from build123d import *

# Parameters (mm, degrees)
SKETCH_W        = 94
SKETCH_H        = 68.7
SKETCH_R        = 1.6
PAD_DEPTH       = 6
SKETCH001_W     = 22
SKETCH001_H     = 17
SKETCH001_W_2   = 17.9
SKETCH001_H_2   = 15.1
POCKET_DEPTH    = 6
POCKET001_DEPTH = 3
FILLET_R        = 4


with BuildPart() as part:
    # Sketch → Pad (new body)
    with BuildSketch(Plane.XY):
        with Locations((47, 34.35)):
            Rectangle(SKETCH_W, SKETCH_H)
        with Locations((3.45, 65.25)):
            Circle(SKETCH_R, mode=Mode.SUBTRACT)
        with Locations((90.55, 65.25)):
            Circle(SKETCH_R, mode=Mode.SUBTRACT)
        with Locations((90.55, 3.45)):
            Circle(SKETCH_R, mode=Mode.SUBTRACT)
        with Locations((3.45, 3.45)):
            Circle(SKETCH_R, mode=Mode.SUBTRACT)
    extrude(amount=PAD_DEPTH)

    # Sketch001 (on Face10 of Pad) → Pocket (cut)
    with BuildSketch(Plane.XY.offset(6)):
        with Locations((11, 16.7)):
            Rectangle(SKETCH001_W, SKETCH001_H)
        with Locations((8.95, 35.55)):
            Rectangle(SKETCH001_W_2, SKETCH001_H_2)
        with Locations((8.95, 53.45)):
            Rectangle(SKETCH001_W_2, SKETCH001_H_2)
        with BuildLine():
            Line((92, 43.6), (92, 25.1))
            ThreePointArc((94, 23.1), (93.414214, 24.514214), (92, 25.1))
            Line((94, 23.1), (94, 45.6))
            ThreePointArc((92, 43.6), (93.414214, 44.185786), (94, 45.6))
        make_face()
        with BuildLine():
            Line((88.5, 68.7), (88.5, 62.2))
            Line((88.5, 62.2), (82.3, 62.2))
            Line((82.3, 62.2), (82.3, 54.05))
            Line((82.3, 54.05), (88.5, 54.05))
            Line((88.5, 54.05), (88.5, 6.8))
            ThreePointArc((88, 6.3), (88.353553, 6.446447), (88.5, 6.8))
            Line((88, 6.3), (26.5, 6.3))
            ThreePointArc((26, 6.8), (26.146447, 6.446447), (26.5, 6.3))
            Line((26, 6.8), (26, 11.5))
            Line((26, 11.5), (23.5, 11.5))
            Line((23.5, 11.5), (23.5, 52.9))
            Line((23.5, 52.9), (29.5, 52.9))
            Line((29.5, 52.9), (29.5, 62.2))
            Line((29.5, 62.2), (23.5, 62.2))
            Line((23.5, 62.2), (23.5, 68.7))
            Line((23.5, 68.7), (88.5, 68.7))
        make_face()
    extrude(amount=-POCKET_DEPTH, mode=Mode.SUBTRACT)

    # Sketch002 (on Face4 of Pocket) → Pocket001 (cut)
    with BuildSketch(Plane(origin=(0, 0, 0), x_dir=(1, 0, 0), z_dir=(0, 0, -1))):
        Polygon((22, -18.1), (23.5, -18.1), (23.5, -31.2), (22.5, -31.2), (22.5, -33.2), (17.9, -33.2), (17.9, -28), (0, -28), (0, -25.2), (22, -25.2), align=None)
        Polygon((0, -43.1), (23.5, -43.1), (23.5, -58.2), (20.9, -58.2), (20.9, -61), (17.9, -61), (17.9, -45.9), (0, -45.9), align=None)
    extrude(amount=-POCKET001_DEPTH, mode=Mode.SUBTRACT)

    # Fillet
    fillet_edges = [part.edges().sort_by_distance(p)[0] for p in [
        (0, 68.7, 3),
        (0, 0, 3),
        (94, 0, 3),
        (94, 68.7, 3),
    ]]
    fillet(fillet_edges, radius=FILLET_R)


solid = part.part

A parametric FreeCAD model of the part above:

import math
import FreeCAD as App
import Part
import Sketcher


def edges_at(feature, points):
    """Names of the edges that pass closest to the given points."""
    edges = feature.Shape.Edges
    near = lambda p: min(range(len(edges)), key=lambda i: edges[i].distToShape(Part.Vertex(*p))[0])
    return sorted({f"Edge{near(p) + 1}" for p in points})


def add_polygon(sketch, points):
    """Adds a closed chain of lines whose ends are joined by coincident constraints."""
    first, n = sketch.GeometryCount, len(points)
    for a, b in zip(points, points[1:] + points[:1]):
        sketch.addGeometry(Part.LineSegment(App.Vector(*a, 0), App.Vector(*b, 0)), False)
    for i in range(n):
        sketch.addConstraint(Sketcher.Constraint("Coincident", first + i, 2, first + (i + 1) % n, 1))

doc = App.newDocument("Part")
params = doc.addObject("Spreadsheet::Sheet", "Params")
for row, (alias, value) in enumerate([
    ("sketch1_diameter", "3.2 mm"),
    ("sketch1_width", "94 mm"),
    ("sketch1_height", "68.7 mm"),
    ("pad1_length", "6 mm"),
    ("sketch2_radius", "1.999999 mm"),
    ("sketch2_radius2", "0.500001 mm"),
    ("sketch2_width", "22 mm"),
    ("sketch2_width2", "65 mm"),
    ("sketch2_width3", "6 mm"),
    ("pocket1_length", "6 mm"),
    ("sketch3_width", "22 mm"),
    ("sketch3_width2", "1 mm"),
    ("sketch3_width3", "3 mm"),
    ("sketch3_height", "2 mm"),
    ("sketch3_width4", "1.5 mm"),
    ("pocket2_length", "3 mm"),
    ("fillet_radius", "4 mm"),
], start=1):
    params.set(f"A{row}", alias)
    params.set(f"B{row}", "=" + value)
    params.setAlias(f"B{row}", alias)

body = doc.addObject("PartDesign::Body", "Body")

# Sketch on XY plane
sketch1 = doc.addObject("Sketcher::SketchObject", "Sketch")
body.addObject(sketch1)
sketch1.AttachmentSupport = (doc.XY_Plane, [""])
sketch1.MapMode = "FlatFace"
add_polygon(sketch1, [(0, 68.7), (0, 0), (94, 0), (94, 68.7)])  # lines 0-3
sketch1.addGeometry(Part.Circle(App.Vector(3.45, 3.45, 0), App.Vector(0, 0, 1), 1.6), False)  # 4
sketch1.addGeometry(Part.Circle(App.Vector(90.55, 3.45, 0), App.Vector(0, 0, 1), 1.6), False)  # 5
sketch1.addGeometry(Part.Circle(App.Vector(3.45, 65.25, 0), App.Vector(0, 0, 1), 1.6), False)  # 6
sketch1.addGeometry(Part.Circle(App.Vector(90.55, 65.25, 0), App.Vector(0, 0, 1), 1.6), False)  # 7
sketch1.addConstraint(Sketcher.Constraint("Vertical", 0))
sketch1.addConstraint(Sketcher.Constraint("Horizontal", 1))
sketch1.addConstraint(Sketcher.Constraint("Vertical", 2))
sketch1.addConstraint(Sketcher.Constraint("Horizontal", 3))
sketch1.addConstraint(Sketcher.Constraint("Coincident", 0, 2, -1, 1))
sketch1.addConstraint(Sketcher.Constraint("Equal", 4, 5))
sketch1.addConstraint(Sketcher.Constraint("Equal", 5, 6))
sketch1.addConstraint(Sketcher.Constraint("Equal", 6, 7))
sketch1.addConstraint(Sketcher.Constraint("Horizontal", 4, 3, 5, 3))
sketch1.addConstraint(Sketcher.Constraint("Horizontal", 6, 3, 7, 3))
sketch1.addConstraint(Sketcher.Constraint("Vertical", 4, 3, 6, 3))
sketch1.addConstraint(Sketcher.Constraint("Vertical", 5, 3, 7, 3))
sketch1.addConstraint(Sketcher.Constraint("Diameter", 4, 3.2))
sketch1.addConstraint(Sketcher.Constraint("DistanceX", 1, 1, 1, 2, 94.0))
sketch1.addConstraint(Sketcher.Constraint("DistanceY", 0, 2, 0, 1, 68.7))
sketch1.addConstraint(Sketcher.Constraint("DistanceX", 4, 3, 5, 3, 87.1))
sketch1.addConstraint(Sketcher.Constraint("DistanceY", 4, 3, 6, 3, 61.8))
sketch1.addConstraint(Sketcher.Constraint("DistanceX", -1, 1, 4, 3, 3.45))
sketch1.addConstraint(Sketcher.Constraint("DistanceY", -1, 1, 4, 3, 3.45))
sketch1.setExpression("Constraints[16]", "Params.sketch1_diameter")
sketch1.setExpression("Constraints[17]", "Params.sketch1_width")
sketch1.setExpression("Constraints[18]", "Params.sketch1_height")
pad1 = doc.addObject("PartDesign::Pad", "Pad")
body.addObject(pad1)
pad1.Profile = sketch1
pad1.setExpression("Length", "Params.pad1_length")

# Sketch on XY plane
sketch2 = doc.addObject("Sketcher::SketchObject", "Sketch001")
body.addObject(sketch2)
sketch2.AttachmentSupport = (doc.XY_Plane, [""])
sketch2.MapMode = "FlatFace"
sketch2.AttachmentOffset = App.Placement(App.Vector(0, 0, 6), App.Rotation())
add_polygon(sketch2, [(0, 25.2), (0, 8.2), (22, 8.2), (22, 25.2)])  # lines 0-3
add_polygon(sketch2, [(0, 43.1), (0, 28), (17.9, 28), (17.9, 43.1)])  # lines 4-7
add_polygon(sketch2, [(0, 61), (0, 45.9), (17.9, 45.9), (17.9, 61)])  # lines 8-11
sketch2.addGeometry(Part.LineSegment(App.Vector(92, 43.6, 0), App.Vector(92, 25.1, 0)), False)  # 12
sketch2.addGeometry(Part.ArcOfCircle(Part.Circle(App.Vector(92.000001, 23.100001, 0), App.Vector(0, 0, 1), 1.999999), math.radians(-0.000043), math.radians(90.000043)), False)  # 13
sketch2.addGeometry(Part.LineSegment(App.Vector(94, 23.1, 0), App.Vector(94, 45.6, 0)), False)  # 14
sketch2.addGeometry(Part.ArcOfCircle(Part.Circle(App.Vector(92.000001, 45.599999, 0), App.Vector(0, 0, 1), 1.999999), math.radians(-90.000043), math.radians(0.000043)), False)  # 15
sketch2.addGeometry(Part.LineSegment(App.Vector(88.5, 62.2, 0), App.Vector(88.5, 68.7, 0)), False)  # 16
sketch2.addGeometry(Part.LineSegment(App.Vector(88.5, 68.7, 0), App.Vector(23.5, 68.7, 0)), False)  # 17
sketch2.addGeometry(Part.LineSegment(App.Vector(23.5, 68.7, 0), App.Vector(23.5, 62.2, 0)), False)  # 18
sketch2.addGeometry(Part.LineSegment(App.Vector(23.5, 62.2, 0), App.Vector(29.5, 62.2, 0)), False)  # 19
sketch2.addGeometry(Part.LineSegment(App.Vector(29.5, 62.2, 0), App.Vector(29.5, 52.9, 0)), False)  # 20
sketch2.addGeometry(Part.LineSegment(App.Vector(29.5, 52.9, 0), App.Vector(23.5, 52.9, 0)), False)  # 21
sketch2.addGeometry(Part.LineSegment(App.Vector(23.5, 52.9, 0), App.Vector(23.5, 11.5, 0)), False)  # 22
sketch2.addGeometry(Part.LineSegment(App.Vector(23.5, 11.5, 0), App.Vector(26, 11.5, 0)), False)  # 23
sketch2.addGeometry(Part.LineSegment(App.Vector(26, 11.5, 0), App.Vector(26, 6.8, 0)), False)  # 24
sketch2.addGeometry(Part.ArcOfCircle(Part.Circle(App.Vector(26.500001, 6.800001, 0), App.Vector(0, 0, 1), 0.500001), math.radians(-179.999847), math.radians(-90.000153)), False)  # 25
sketch2.addGeometry(Part.LineSegment(App.Vector(26.5, 6.3, 0), App.Vector(88, 6.3, 0)), False)  # 26
sketch2.addGeometry(Part.ArcOfCircle(Part.Circle(App.Vector(87.999999, 6.800001, 0), App.Vector(0, 0, 1), 0.500001), math.radians(-89.999847), math.radians(-0.000153)), False)  # 27
sketch2.addGeometry(Part.LineSegment(App.Vector(88.5, 6.8, 0), App.Vector(88.5, 54.05, 0)), False)  # 28
sketch2.addGeometry(Part.LineSegment(App.Vector(88.5, 54.05, 0), App.Vector(82.3, 54.05, 0)), False)  # 29
sketch2.addGeometry(Part.LineSegment(App.Vector(82.3, 54.05, 0), App.Vector(82.3, 62.2, 0)), False)  # 30
sketch2.addGeometry(Part.LineSegment(App.Vector(82.3, 62.2, 0), App.Vector(88.5, 62.2, 0)), False)  # 31
sketch2.addConstraint(Sketcher.Constraint("Coincident", 12, 2, 13, 2))
sketch2.addConstraint(Sketcher.Constraint("Tangent", 13, 1, 14, 1))
sketch2.addConstraint(Sketcher.Constraint("Tangent", 14, 2, 15, 2))
sketch2.addConstraint(Sketcher.Constraint("Coincident", 15, 1, 12, 1))
sketch2.addConstraint(Sketcher.Constraint("Coincident", 16, 2, 17, 1))
sketch2.addConstraint(Sketcher.Constraint("Coincident", 17, 2, 18, 1))
sketch2.addConstraint(Sketcher.Constraint("Coincident", 18, 2, 19, 1))
sketch2.addConstraint(Sketcher.Constraint("Coincident", 19, 2, 20, 1))
sketch2.addConstraint(Sketcher.Constraint("Coincident", 20, 2, 21, 1))
sketch2.addConstraint(Sketcher.Constraint("Coincident", 21, 2, 22, 1))
sketch2.addConstraint(Sketcher.Constraint("Coincident", 22, 2, 23, 1))
sketch2.addConstraint(Sketcher.Constraint("Coincident", 23, 2, 24, 1))
sketch2.addConstraint(Sketcher.Constraint("Coincident", 24, 2, 25, 1))
sketch2.addConstraint(Sketcher.Constraint("Coincident", 25, 2, 26, 1))
sketch2.addConstraint(Sketcher.Constraint("Coincident", 26, 2, 27, 1))
sketch2.addConstraint(Sketcher.Constraint("Coincident", 27, 2, 28, 1))
sketch2.addConstraint(Sketcher.Constraint("Coincident", 28, 2, 29, 1))
sketch2.addConstraint(Sketcher.Constraint("Coincident", 29, 2, 30, 1))
sketch2.addConstraint(Sketcher.Constraint("Coincident", 30, 2, 31, 1))
sketch2.addConstraint(Sketcher.Constraint("Coincident", 31, 2, 16, 1))
sketch2.addConstraint(Sketcher.Constraint("Vertical", 0))
sketch2.addConstraint(Sketcher.Constraint("Horizontal", 1))
sketch2.addConstraint(Sketcher.Constraint("Vertical", 2))
sketch2.addConstraint(Sketcher.Constraint("Horizontal", 3))
sketch2.addConstraint(Sketcher.Constraint("Vertical", 4))
sketch2.addConstraint(Sketcher.Constraint("Horizontal", 5))
sketch2.addConstraint(Sketcher.Constraint("Vertical", 6))
sketch2.addConstraint(Sketcher.Constraint("Horizontal", 7))
sketch2.addConstraint(Sketcher.Constraint("Vertical", 8))
sketch2.addConstraint(Sketcher.Constraint("Horizontal", 9))
sketch2.addConstraint(Sketcher.Constraint("Vertical", 10))
sketch2.addConstraint(Sketcher.Constraint("Horizontal", 11))
sketch2.addConstraint(Sketcher.Constraint("Vertical", 12))
sketch2.addConstraint(Sketcher.Constraint("Vertical", 14))
sketch2.addConstraint(Sketcher.Constraint("Vertical", 16))
sketch2.addConstraint(Sketcher.Constraint("Horizontal", 17))
sketch2.addConstraint(Sketcher.Constraint("Vertical", 18))
sketch2.addConstraint(Sketcher.Constraint("Horizontal", 19))
sketch2.addConstraint(Sketcher.Constraint("Vertical", 20))
sketch2.addConstraint(Sketcher.Constraint("Horizontal", 21))
sketch2.addConstraint(Sketcher.Constraint("Vertical", 22))
sketch2.addConstraint(Sketcher.Constraint("Horizontal", 23))
sketch2.addConstraint(Sketcher.Constraint("Vertical", 24))
sketch2.addConstraint(Sketcher.Constraint("Horizontal", 26))
sketch2.addConstraint(Sketcher.Constraint("Vertical", 28))
sketch2.addConstraint(Sketcher.Constraint("Horizontal", 29))
sketch2.addConstraint(Sketcher.Constraint("Vertical", 30))
sketch2.addConstraint(Sketcher.Constraint("Horizontal", 31))
sketch2.addConstraint(Sketcher.Constraint("Equal", 13, 15))
sketch2.addConstraint(Sketcher.Constraint("Equal", 25, 27))
sketch2.addConstraint(Sketcher.Constraint("PointOnObject", 0, 2, -2))
sketch2.addConstraint(Sketcher.Constraint("PointOnObject", 4, 2, -2))
sketch2.addConstraint(Sketcher.Constraint("PointOnObject", 8, 2, -2))
sketch2.addConstraint(Sketcher.Constraint("Horizontal", 27, 3, 24, 2))
sketch2.addConstraint(Sketcher.Constraint("Horizontal", 24, 2, 27, 2))
sketch2.addConstraint(Sketcher.Constraint("Horizontal", 19, 2, 30, 2))
sketch2.addConstraint(Sketcher.Constraint("Vertical", 6, 2, 9, 2))
sketch2.addConstraint(Sketcher.Constraint("Vertical", 15, 3, 12, 2))
sketch2.addConstraint(Sketcher.Constraint("Vertical", 18, 2, 21, 2))
sketch2.addConstraint(Sketcher.Constraint("Vertical", 27, 3, 26, 2))
sketch2.addConstraint(Sketcher.Constraint("Vertical", 16, 2, 27, 2))
sketch2.addConstraint(Sketcher.Constraint("Equal", 6, 8))
sketch2.addConstraint(Sketcher.Constraint("Radius", 13, 1.999999))
sketch2.addConstraint(Sketcher.Constraint("Radius", 25, 0.500001))
sketch2.addConstraint(Sketcher.Constraint("DistanceX", 1, 1, 1, 2, 22.0))
sketch2.addConstraint(Sketcher.Constraint("DistanceX", 17, 2, 17, 1, 65.0))
sketch2.addConstraint(Sketcher.Constraint("DistanceX", 19, 1, 19, 2, 6.0))
sketch2.addConstraint(Sketcher.Constraint("DistanceY", 0, 2, 0, 1, 17.0))
sketch2.addConstraint(Sketcher.Constraint("DistanceX", 5, 1, 5, 2, 17.9))
sketch2.addConstraint(Sketcher.Constraint("DistanceX", 23, 1, 23, 2, 2.5))
sketch2.addConstraint(Sketcher.Constraint("DistanceX", 26, 1, 26, 2, 61.5))
sketch2.addConstraint(Sketcher.Constraint("DistanceX", 29, 2, 29, 1, 6.2))
sketch2.addConstraint(Sketcher.Constraint("DistanceY", 4, 2, 4, 1, 15.1))
sketch2.addConstraint(Sketcher.Constraint("DistanceY", 12, 2, 12, 1, 18.5))
sketch2.addConstraint(Sketcher.Constraint("DistanceY", 16, 1, 16, 2, 6.5))
sketch2.addConstraint(Sketcher.Constraint("DistanceY", 20, 2, 20, 1, 9.3))
sketch2.addConstraint(Sketcher.Constraint("DistanceY", 22, 2, 22, 1, 41.4))
sketch2.addConstraint(Sketcher.Constraint("DistanceY", 24, 2, 24, 1, 4.7))
sketch2.addConstraint(Sketcher.Constraint("DistanceX", -1, 1, 13, 3, 92.000001))
sketch2.addConstraint(Sketcher.Constraint("DistanceX", -1, 1, 27, 3, 87.999999))
sketch2.addConstraint(Sketcher.Constraint("DistanceY", -1, 1, 4, 2, 28.0))
sketch2.addConstraint(Sketcher.Constraint("DistanceY", -1, 1, 10, 2, 61.0))
sketch2.addConstraint(Sketcher.Constraint("DistanceY", 9, 2, 20, 2, 7.0))
sketch2.addConstraint(Sketcher.Constraint("DistanceY", 28, 1, 28, 2, 47.25))
sketch2.addConstraint(Sketcher.Constraint("DistanceY", -1, 1, 13, 3, 23.100001))
sketch2.addConstraint(Sketcher.Constraint("DistanceY", -1, 1, 0, 2, 8.2))
sketch2.setExpression("Constraints[74]", "Params.sketch2_radius")
sketch2.setExpression("Constraints[75]", "Params.sketch2_radius2")
sketch2.setExpression("Constraints[76]", "Params.sketch2_width")
sketch2.setExpression("Constraints[77]", "Params.sketch2_width2")
sketch2.setExpression("Constraints[78]", "Params.sketch2_width3")
pocket1 = doc.addObject("PartDesign::Pocket", "Pocket")
body.addObject(pocket1)
pocket1.Profile = sketch2
pocket1.setExpression("Length", "Params.pocket1_length")

# Sketch on XY plane
sketch3 = doc.addObject("Sketcher::SketchObject", "Sketch002")
body.addObject(sketch3)
sketch3.AttachmentSupport = (doc.XY_Plane, [""])
sketch3.MapMode = "FlatFace"
add_polygon(sketch3, [(23.5, 18.1), (22, 18.1), (22, 25.2), (0, 25.2), (0, 28), (17.9, 28), (17.9, 33.2), (22.5, 33.2), (22.5, 31.2), (23.5, 31.2)])  # lines 0-9
add_polygon(sketch3, [(23.5, 43.1), (0, 43.1), (0, 45.9), (17.9, 45.9), (17.9, 61), (20.9, 61), (20.9, 58.2), (23.5, 58.2)])  # lines 10-17
sketch3.addConstraint(Sketcher.Constraint("Horizontal", 0))
sketch3.addConstraint(Sketcher.Constraint("Vertical", 1))
sketch3.addConstraint(Sketcher.Constraint("Horizontal", 2))
sketch3.addConstraint(Sketcher.Constraint("Vertical", 3))
sketch3.addConstraint(Sketcher.Constraint("Horizontal", 4))
sketch3.addConstraint(Sketcher.Constraint("Vertical", 5))
sketch3.addConstraint(Sketcher.Constraint("Horizontal", 6))
sketch3.addConstraint(Sketcher.Constraint("Vertical", 7))
sketch3.addConstraint(Sketcher.Constraint("Horizontal", 8))
sketch3.addConstraint(Sketcher.Constraint("Vertical", 9))
sketch3.addConstraint(Sketcher.Constraint("Horizontal", 10))
sketch3.addConstraint(Sketcher.Constraint("Vertical", 11))
sketch3.addConstraint(Sketcher.Constraint("Horizontal", 12))
sketch3.addConstraint(Sketcher.Constraint("Vertical", 13))
sketch3.addConstraint(Sketcher.Constraint("Horizontal", 14))
sketch3.addConstraint(Sketcher.Constraint("Vertical", 15))
sketch3.addConstraint(Sketcher.Constraint("Horizontal", 16))
sketch3.addConstraint(Sketcher.Constraint("Vertical", 17))
sketch3.addConstraint(Sketcher.Constraint("PointOnObject", 2, 2, -2))
sketch3.addConstraint(Sketcher.Constraint("PointOnObject", 10, 2, -2))
sketch3.addConstraint(Sketcher.Constraint("Vertical", 5, 2, 12, 2))
sketch3.addConstraint(Sketcher.Constraint("Vertical", 9, 2, 16, 2))
sketch3.addConstraint(Sketcher.Constraint("Equal", 3, 11))
sketch3.addConstraint(Sketcher.Constraint("Equal", 11, 15))
sketch3.addConstraint(Sketcher.Constraint("DistanceX", 2, 2, 2, 1, 22.0))
sketch3.addConstraint(Sketcher.Constraint("DistanceX", 8, 1, 8, 2, 1.0))
sketch3.addConstraint(Sketcher.Constraint("DistanceX", 14, 1, 14, 2, 3.0))
sketch3.addConstraint(Sketcher.Constraint("DistanceY", 7, 2, 7, 1, 2.0))
sketch3.addConstraint(Sketcher.Constraint("DistanceX", 0, 2, 0, 1, 1.5))
sketch3.addConstraint(Sketcher.Constraint("DistanceX", 4, 1, 4, 2, 17.9))
sketch3.addConstraint(Sketcher.Constraint("DistanceY", 1, 1, 1, 2, 7.1))
sketch3.addConstraint(Sketcher.Constraint("DistanceY", 3, 1, 3, 2, 2.8))
sketch3.addConstraint(Sketcher.Constraint("DistanceY", 5, 1, 5, 2, 5.2))
sketch3.addConstraint(Sketcher.Constraint("DistanceY", 13, 1, 13, 2, 15.1))
sketch3.addConstraint(Sketcher.Constraint("DistanceY", -1, 1, 3, 2, 28.0))
sketch3.addConstraint(Sketcher.Constraint("DistanceY", -1, 1, 13, 2, 61.0))
sketch3.setExpression("Constraints[42]", "Params.sketch3_width")
sketch3.setExpression("Constraints[43]", "Params.sketch3_width2")
sketch3.setExpression("Constraints[44]", "Params.sketch3_width3")
sketch3.setExpression("Constraints[45]", "Params.sketch3_height")
sketch3.setExpression("Constraints[46]", "Params.sketch3_width4")
pocket2 = doc.addObject("PartDesign::Pocket", "Pocket001")
body.addObject(pocket2)
pocket2.Profile = sketch3
pocket2.setExpression("Length", "Params.pocket2_length")
pocket2.Reversed = True
doc.recompute()

fillet = doc.addObject("PartDesign::Fillet", "Fillet")
body.addObject(fillet)
fillet.Base = (pocket2, edges_at(pocket2, [
    (0, 68.7, 3),
    (0, 0, 3),
    (94, 0, 3),
    (94, 68.7, 3),
]))
fillet.setExpression("Radius", "Params.fillet_radius")

doc.recompute()
